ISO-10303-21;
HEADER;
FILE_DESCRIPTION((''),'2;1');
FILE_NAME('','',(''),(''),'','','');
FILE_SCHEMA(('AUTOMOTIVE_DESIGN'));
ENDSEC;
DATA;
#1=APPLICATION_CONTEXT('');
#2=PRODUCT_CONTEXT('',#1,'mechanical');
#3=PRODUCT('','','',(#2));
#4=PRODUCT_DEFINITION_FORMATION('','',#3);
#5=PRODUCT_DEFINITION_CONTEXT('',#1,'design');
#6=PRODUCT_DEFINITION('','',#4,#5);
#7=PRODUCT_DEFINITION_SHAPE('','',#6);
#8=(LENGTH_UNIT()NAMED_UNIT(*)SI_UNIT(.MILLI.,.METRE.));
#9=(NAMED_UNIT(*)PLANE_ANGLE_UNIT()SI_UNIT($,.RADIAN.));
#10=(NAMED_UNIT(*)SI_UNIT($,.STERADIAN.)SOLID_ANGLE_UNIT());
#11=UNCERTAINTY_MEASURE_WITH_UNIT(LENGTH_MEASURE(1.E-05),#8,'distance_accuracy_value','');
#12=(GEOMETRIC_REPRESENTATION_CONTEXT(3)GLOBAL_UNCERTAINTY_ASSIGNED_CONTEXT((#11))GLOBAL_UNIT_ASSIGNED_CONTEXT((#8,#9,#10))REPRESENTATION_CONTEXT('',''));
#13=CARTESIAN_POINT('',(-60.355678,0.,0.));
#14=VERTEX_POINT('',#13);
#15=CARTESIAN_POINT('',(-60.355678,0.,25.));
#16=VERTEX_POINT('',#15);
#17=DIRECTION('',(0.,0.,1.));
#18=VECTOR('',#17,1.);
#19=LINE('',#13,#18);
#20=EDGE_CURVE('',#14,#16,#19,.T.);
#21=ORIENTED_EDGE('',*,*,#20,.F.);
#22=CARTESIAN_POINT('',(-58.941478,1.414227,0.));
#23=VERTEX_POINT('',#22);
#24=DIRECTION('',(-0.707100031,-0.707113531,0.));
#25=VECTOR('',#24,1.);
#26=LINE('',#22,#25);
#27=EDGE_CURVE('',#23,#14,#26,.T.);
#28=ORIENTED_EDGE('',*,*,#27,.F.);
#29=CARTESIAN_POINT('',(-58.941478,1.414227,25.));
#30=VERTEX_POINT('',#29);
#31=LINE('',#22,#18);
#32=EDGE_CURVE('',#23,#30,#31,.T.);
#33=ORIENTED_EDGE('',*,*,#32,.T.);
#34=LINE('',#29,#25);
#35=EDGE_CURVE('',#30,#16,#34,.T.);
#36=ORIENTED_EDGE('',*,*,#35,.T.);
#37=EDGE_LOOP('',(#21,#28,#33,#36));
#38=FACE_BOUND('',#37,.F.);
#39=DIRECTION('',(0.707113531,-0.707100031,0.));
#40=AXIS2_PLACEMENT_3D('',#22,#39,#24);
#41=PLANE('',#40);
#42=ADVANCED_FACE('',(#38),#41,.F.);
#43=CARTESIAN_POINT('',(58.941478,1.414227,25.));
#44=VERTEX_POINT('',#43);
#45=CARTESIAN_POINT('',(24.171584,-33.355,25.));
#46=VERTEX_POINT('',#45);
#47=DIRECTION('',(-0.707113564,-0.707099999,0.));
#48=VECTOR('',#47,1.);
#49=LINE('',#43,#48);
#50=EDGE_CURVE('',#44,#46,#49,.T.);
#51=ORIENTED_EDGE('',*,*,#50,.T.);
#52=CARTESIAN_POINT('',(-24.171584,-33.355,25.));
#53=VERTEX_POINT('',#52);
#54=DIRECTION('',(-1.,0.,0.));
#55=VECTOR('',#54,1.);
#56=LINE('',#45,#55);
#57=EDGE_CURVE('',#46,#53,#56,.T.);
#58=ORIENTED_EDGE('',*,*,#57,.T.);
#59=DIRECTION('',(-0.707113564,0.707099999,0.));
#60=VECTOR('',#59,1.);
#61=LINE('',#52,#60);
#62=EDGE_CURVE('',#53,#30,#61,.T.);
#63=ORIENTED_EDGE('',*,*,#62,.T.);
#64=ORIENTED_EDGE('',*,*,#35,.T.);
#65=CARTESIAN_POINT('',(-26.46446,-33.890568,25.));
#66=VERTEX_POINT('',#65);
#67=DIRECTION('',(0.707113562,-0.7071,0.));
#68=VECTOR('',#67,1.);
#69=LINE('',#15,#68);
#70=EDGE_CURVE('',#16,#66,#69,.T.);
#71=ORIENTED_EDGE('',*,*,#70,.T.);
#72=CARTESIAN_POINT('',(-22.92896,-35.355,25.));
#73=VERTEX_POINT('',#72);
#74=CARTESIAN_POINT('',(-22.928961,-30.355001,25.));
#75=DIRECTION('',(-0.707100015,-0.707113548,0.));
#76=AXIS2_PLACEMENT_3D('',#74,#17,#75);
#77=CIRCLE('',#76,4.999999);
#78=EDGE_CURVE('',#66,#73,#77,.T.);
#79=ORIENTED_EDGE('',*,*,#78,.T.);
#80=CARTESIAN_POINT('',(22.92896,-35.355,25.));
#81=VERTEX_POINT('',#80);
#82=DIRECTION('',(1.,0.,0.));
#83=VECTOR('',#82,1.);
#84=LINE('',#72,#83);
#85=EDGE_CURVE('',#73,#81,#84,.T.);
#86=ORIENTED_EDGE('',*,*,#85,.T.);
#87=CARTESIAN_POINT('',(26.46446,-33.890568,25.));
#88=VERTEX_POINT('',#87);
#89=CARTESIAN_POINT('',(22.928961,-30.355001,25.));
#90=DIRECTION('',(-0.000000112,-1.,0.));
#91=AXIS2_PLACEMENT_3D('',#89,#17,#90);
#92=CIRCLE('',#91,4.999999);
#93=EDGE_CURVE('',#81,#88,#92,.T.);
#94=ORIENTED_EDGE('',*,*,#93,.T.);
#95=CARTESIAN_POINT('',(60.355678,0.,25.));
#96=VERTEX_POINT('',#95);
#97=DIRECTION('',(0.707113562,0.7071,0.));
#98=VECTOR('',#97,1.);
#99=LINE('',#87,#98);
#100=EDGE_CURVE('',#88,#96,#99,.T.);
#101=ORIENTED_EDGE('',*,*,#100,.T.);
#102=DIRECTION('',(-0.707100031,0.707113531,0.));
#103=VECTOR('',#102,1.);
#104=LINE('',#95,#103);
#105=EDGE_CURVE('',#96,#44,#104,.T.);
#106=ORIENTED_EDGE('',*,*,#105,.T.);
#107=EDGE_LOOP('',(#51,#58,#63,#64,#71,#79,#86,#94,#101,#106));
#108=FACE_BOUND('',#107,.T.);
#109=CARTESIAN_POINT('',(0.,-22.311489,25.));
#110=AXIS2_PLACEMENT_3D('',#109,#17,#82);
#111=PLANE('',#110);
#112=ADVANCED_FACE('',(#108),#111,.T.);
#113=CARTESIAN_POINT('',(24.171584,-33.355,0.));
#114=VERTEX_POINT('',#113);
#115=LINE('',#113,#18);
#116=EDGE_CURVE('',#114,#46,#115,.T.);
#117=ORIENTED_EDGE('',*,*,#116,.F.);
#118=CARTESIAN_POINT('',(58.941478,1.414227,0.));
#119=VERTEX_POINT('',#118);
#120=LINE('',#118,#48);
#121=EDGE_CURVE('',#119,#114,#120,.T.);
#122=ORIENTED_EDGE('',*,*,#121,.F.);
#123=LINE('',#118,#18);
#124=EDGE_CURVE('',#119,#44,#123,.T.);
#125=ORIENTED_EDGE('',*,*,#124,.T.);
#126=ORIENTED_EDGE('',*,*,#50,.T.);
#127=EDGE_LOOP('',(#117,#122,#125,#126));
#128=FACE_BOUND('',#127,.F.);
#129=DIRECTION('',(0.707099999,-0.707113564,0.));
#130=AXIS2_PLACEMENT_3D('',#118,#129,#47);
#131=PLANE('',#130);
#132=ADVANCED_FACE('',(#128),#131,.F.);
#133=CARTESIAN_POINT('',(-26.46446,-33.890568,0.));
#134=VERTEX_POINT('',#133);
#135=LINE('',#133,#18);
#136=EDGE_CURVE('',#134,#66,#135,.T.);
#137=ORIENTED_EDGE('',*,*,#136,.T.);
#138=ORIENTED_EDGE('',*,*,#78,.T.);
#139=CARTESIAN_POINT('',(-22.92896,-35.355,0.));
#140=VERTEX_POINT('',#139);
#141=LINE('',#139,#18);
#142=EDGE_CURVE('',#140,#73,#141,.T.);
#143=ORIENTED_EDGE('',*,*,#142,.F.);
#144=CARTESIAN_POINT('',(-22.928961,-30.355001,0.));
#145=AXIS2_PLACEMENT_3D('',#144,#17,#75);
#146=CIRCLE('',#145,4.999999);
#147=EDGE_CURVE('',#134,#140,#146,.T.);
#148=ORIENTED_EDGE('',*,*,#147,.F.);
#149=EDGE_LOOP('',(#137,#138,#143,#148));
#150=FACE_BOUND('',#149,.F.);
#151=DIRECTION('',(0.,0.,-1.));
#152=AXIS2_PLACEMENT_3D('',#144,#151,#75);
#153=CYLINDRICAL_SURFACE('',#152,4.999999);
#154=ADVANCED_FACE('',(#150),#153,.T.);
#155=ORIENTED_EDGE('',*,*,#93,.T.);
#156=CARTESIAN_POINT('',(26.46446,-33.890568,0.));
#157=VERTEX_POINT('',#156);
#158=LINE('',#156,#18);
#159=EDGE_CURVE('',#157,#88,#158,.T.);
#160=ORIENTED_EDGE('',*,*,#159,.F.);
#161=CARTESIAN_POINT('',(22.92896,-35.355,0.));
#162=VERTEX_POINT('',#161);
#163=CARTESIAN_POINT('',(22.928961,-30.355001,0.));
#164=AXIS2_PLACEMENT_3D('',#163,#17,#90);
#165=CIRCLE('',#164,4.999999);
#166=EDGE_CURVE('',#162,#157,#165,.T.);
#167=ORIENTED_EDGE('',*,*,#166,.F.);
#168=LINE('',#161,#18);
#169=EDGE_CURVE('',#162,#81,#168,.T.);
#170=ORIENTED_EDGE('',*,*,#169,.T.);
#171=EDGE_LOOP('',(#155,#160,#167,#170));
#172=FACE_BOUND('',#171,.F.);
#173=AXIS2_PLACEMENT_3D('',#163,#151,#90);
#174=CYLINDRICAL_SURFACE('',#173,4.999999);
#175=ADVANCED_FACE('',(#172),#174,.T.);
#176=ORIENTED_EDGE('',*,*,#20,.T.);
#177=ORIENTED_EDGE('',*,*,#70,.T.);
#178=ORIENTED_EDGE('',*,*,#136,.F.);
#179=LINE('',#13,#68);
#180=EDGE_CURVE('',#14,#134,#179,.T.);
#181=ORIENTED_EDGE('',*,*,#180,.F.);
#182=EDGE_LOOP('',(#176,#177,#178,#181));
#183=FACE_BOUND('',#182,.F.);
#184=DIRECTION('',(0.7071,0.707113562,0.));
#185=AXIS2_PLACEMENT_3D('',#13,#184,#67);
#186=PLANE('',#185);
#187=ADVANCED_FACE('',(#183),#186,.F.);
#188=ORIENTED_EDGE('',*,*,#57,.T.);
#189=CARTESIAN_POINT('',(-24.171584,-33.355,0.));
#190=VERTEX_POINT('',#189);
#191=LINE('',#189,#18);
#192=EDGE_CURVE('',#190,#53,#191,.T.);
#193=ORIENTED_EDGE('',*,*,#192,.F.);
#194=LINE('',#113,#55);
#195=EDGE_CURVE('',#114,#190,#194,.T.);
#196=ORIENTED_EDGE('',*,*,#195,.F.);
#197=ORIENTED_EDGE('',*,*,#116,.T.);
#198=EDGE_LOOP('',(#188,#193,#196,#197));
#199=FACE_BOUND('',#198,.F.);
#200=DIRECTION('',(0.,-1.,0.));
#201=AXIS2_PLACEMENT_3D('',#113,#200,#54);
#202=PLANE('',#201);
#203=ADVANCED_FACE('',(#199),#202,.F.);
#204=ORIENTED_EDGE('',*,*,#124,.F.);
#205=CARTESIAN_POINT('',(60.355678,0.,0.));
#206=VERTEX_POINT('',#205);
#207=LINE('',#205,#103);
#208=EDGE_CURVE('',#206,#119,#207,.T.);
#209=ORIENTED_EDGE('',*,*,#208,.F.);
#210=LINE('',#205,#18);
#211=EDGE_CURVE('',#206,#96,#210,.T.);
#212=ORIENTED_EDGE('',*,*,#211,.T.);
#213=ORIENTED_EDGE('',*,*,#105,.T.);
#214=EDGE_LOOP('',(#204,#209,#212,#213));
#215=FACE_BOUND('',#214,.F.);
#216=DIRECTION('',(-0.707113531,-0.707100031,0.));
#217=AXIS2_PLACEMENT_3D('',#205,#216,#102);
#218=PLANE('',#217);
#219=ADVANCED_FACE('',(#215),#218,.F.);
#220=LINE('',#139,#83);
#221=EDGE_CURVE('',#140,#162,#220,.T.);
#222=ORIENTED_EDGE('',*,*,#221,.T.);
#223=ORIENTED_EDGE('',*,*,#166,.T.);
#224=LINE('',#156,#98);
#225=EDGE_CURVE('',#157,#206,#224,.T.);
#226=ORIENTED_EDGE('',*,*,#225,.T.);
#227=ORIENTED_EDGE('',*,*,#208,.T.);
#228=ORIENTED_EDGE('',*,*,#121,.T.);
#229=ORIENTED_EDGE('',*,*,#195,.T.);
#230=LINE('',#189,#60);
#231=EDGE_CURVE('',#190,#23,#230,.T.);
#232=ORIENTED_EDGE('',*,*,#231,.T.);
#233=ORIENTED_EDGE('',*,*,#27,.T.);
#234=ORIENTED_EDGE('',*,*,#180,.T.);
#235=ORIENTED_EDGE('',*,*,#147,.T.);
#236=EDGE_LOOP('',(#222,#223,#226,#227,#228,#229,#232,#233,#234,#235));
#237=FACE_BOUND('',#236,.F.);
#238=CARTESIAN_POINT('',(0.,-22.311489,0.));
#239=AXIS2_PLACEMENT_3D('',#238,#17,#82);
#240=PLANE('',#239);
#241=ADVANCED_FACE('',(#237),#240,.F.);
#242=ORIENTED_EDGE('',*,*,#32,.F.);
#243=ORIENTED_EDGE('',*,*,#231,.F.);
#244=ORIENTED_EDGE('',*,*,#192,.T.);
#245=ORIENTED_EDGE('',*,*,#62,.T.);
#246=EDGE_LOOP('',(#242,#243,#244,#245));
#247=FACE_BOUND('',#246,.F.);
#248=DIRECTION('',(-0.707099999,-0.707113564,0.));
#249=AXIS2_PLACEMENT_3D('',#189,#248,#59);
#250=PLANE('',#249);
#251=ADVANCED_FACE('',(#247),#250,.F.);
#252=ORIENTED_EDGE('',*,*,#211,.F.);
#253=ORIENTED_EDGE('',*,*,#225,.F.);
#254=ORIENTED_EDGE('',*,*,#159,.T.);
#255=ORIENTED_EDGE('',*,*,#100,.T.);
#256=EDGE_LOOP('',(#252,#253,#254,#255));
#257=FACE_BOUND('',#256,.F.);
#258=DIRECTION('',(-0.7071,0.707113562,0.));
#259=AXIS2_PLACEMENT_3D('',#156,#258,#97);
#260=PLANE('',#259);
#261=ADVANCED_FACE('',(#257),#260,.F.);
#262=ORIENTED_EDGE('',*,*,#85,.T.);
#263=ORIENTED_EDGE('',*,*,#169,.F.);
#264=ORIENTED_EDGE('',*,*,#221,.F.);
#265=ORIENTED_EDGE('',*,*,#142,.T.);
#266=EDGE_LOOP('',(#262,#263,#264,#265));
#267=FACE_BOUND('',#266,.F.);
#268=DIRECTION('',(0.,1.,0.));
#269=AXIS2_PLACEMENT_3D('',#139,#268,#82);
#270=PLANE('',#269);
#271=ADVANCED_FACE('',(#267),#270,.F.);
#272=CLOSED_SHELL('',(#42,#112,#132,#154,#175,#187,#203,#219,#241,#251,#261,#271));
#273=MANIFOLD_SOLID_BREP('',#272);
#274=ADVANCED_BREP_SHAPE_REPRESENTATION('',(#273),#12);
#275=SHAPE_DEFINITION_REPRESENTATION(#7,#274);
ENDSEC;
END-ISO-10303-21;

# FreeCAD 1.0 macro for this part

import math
import FreeCAD as App
import Part
import Sketcher

V = App.Vector

doc = App.newDocument("Part")
params = doc.addObject("Spreadsheet::Sheet", "Params")
for row, (alias, value) in enumerate([
    ("sketch1_radius", "4.999999 mm"),
    ("sketch1_length", "2 mm"),
    ("pad1_length", "25 mm"),
], start=1):
    params.set(f"A{row}", alias)
    params.set(f"B{row}", "=" + value)
    params.setAlias(f"B{row}", alias)

body = doc.addObject("PartDesign::Body", "Body")

# Sketch on XY plane
sketch1 = body.newObject("Sketcher::SketchObject", "Sketch")
sketch1.AttachmentSupport = (doc.getObject("XY_Plane"), [""])
sketch1.MapMode = "FlatFace"
sketch1.addGeometry([
    Part.LineSegment(V(-58.9, 1.4, 0), V(-60.4, 0, 0)),  # 0
    Part.LineSegment(V(-60.4, 0, 0), V(-26.5, -33.9, 0)),  # 1
    Part.ArcOfCircle(Part.Circle(V(-22.9, -30.4, 0), V(0, 0, 1), 5), math.radians(-135), math.radians(-90)),  # 2
    Part.LineSegment(V(-22.9, -35.4, 0), V(22.9, -35.4, 0)),  # 3
    Part.ArcOfCircle(Part.Circle(V(22.9, -30.4, 0), V(0, 0, 1), 5), math.radians(-90), math.radians(-45)),  # 4
    Part.LineSegment(V(26.5, -33.9, 0), V(60.4, 0, 0)),  # 5
    Part.LineSegment(V(60.4, 0, 0), V(58.9, 1.4, 0)),  # 6
    Part.LineSegment(V(58.9, 1.4, 0), V(24.2, -33.4, 0)),  # 7
    Part.LineSegment(V(24.2, -33.4, 0), V(-24.2, -33.4, 0)),  # 8
    Part.LineSegment(V(-24.2, -33.4, 0), V(-58.9, 1.4, 0)),  # 9
], False)
sketch1.addConstraint([
    Sketcher.Constraint("Coincident", 0, 2, 1, 1),
    Sketcher.Constraint("Tangent", 1, 2, 2, 1),
    Sketcher.Constraint("Tangent", 2, 2, 3, 1),
    Sketcher.Constraint("Tangent", 3, 2, 4, 1),
    Sketcher.Constraint("Tangent", 4, 2, 5, 1),
    Sketcher.Constraint("Coincident", 5, 2, 6, 1),
    Sketcher.Constraint("Coincident", 6, 2, 7, 1),
    Sketcher.Constraint("Coincident", 7, 2, 8, 1),
    Sketcher.Constraint("Coincident", 8, 2, 9, 1),
    Sketcher.Constraint("Coincident", 9, 2, 0, 1),
    Sketcher.Constraint("Horizontal", 3),
    Sketcher.Constraint("Horizontal", 8),
    Sketcher.Constraint("Equal", 2, 4),
    Sketcher.Constraint("Symmetric", 0, 2, 5, 2, -1, 1),
    Sketcher.Constraint("Symmetric", 1, 2, 4, 2, -2),
    Sketcher.Constraint("Symmetric", 6, 2, 9, 2, -2),
    Sketcher.Constraint("Perpendicular", 0, 1),
    Sketcher.Constraint("Perpendicular", 6, 7),
    Sketcher.Constraint("Parallel", 1, 9),
    Sketcher.Constraint("Radius", 2, 4.999999),
    Sketcher.Constraint("Distance", 0, 2.0),
    Sketcher.Constraint("DistanceY", 3, 2, 7, 2, 2.0),
    Sketcher.Constraint("DistanceY", 2, 3, -1, 1, 30.355001),
    Sketcher.Constraint("DistanceX", 3, 1, 3, 2, 45.85792),
    Sketcher.Constraint("DistanceX", 1, 2, 2, 3, 3.535499),
])
sketch1.setExpression("Constraints[19]", "Params.sketch1_radius")
sketch1.setExpression("Constraints[20]", "Params.sketch1_length")
pad1 = body.newObject("PartDesign::Pad", "Pad")
pad1.Profile = sketch1
pad1.setExpression("Length", "Params.pad1_length")

doc.recompute()
